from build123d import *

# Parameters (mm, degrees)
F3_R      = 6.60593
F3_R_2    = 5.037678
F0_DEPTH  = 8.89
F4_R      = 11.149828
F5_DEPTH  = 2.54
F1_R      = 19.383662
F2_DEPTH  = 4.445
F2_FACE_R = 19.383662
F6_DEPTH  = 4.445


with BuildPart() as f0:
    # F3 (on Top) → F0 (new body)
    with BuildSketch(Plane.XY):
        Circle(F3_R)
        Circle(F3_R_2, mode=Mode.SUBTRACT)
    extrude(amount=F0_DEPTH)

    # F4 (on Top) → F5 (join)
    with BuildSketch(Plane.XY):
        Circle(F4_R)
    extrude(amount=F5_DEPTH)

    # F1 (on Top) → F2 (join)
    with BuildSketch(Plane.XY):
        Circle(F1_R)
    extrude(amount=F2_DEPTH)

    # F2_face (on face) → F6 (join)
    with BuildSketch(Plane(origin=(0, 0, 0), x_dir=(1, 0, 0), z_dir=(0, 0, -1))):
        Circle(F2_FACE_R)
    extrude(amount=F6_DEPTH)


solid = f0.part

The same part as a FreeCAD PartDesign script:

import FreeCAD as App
import Part
import Sketcher
from FreeCAD import Vector
Q = App.Units.Quantity

doc = App.newDocument("Part")
body = doc.addObject("PartDesign::Body", "Body")

# Sketch on XY plane
sketch1 = body.newObject("Sketcher::SketchObject", "Sketch")
sketch1.AttachmentSupport = (doc.getObject("XY_Plane"), [""])
sketch1.MapMode = "FlatFace"
sketch1.addGeometry([
    Part.Circle(Vector(0, 0, 0), Vector(0, 0, 1), 6.60593),
    Part.Circle(Vector(0, 0, 0), Vector(0, 0, 1), 5.037678),
], False)
sketch1.addConstraint([
    Sketcher.Constraint("Coincident", 0, 3, -1, 1),
    Sketcher.Constraint("Coincident", 1, 3, -1, 1),
    Sketcher.Constraint("Diameter", 0, 13.21186),
    Sketcher.Constraint("Diameter", 1, 10.075356),
])
pad1 = body.newObject("PartDesign::Pad", "Pad")
pad1.Profile = sketch1
pad1.Length = Q("0.35 in")

# Sketch on XY plane
sketch2 = body.newObject("Sketcher::SketchObject", "Sketch001")
sketch2.AttachmentSupport = (doc.getObject("XY_Plane"), [""])
sketch2.MapMode = "FlatFace"
sketch2.addGeometry(Part.Circle(Vector(0, 0, 0), Vector(0, 0, 1), 11.149828), False)
sketch2.addConstraint([
    Sketcher.Constraint("Coincident", 0, 3, -1, 1),
    Sketcher.Constraint("Diameter", 0, 22.299656),
])
pad2 = body.newObject("PartDesign::Pad", "Pad001")
pad2.Profile = sketch2
pad2.Length = Q("0.1 in")

# Sketch on XY plane
sketch3 = body.newObject("Sketcher::SketchObject", "Sketch002")
sketch3.AttachmentSupport = (doc.getObject("XY_Plane"), [""])
sketch3.MapMode = "FlatFace"
sketch3.addGeometry(Part.Circle(Vector(0, 0, 0), Vector(0, 0, 1), 19.383662), False)
sketch3.addConstraint([
    Sketcher.Constraint("Coincident", 0, 3, -1, 1),
    Sketcher.Constraint("Diameter", 0, 38.767324),
])
pad3 = body.newObject("PartDesign::Pad", "Pad002")
pad3.Profile = sketch3
pad3.Length = Q("0.175 in")

# Sketch on XY plane
sketch4 = body.newObject("Sketcher::SketchObject", "Sketch003")
sketch4.AttachmentSupport = (doc.getObject("XY_Plane"), [""])
sketch4.MapMode = "FlatFace"
sketch4.addGeometry(Part.Circle(Vector(0, 0, 0), Vector(0, 0, 1), 19.383662), False)
sketch4.addConstraint([
    Sketcher.Constraint("Coincident", 0, 3, -1, 1),
    Sketcher.Constraint("Diameter", 0, 38.767324),
])
pad4 = body.newObject("PartDesign::Pad", "Pad003")
pad4.Profile = sketch4
pad4.Length = Q("0.175 in")
pad4.Reversed = True

doc.recompute()
